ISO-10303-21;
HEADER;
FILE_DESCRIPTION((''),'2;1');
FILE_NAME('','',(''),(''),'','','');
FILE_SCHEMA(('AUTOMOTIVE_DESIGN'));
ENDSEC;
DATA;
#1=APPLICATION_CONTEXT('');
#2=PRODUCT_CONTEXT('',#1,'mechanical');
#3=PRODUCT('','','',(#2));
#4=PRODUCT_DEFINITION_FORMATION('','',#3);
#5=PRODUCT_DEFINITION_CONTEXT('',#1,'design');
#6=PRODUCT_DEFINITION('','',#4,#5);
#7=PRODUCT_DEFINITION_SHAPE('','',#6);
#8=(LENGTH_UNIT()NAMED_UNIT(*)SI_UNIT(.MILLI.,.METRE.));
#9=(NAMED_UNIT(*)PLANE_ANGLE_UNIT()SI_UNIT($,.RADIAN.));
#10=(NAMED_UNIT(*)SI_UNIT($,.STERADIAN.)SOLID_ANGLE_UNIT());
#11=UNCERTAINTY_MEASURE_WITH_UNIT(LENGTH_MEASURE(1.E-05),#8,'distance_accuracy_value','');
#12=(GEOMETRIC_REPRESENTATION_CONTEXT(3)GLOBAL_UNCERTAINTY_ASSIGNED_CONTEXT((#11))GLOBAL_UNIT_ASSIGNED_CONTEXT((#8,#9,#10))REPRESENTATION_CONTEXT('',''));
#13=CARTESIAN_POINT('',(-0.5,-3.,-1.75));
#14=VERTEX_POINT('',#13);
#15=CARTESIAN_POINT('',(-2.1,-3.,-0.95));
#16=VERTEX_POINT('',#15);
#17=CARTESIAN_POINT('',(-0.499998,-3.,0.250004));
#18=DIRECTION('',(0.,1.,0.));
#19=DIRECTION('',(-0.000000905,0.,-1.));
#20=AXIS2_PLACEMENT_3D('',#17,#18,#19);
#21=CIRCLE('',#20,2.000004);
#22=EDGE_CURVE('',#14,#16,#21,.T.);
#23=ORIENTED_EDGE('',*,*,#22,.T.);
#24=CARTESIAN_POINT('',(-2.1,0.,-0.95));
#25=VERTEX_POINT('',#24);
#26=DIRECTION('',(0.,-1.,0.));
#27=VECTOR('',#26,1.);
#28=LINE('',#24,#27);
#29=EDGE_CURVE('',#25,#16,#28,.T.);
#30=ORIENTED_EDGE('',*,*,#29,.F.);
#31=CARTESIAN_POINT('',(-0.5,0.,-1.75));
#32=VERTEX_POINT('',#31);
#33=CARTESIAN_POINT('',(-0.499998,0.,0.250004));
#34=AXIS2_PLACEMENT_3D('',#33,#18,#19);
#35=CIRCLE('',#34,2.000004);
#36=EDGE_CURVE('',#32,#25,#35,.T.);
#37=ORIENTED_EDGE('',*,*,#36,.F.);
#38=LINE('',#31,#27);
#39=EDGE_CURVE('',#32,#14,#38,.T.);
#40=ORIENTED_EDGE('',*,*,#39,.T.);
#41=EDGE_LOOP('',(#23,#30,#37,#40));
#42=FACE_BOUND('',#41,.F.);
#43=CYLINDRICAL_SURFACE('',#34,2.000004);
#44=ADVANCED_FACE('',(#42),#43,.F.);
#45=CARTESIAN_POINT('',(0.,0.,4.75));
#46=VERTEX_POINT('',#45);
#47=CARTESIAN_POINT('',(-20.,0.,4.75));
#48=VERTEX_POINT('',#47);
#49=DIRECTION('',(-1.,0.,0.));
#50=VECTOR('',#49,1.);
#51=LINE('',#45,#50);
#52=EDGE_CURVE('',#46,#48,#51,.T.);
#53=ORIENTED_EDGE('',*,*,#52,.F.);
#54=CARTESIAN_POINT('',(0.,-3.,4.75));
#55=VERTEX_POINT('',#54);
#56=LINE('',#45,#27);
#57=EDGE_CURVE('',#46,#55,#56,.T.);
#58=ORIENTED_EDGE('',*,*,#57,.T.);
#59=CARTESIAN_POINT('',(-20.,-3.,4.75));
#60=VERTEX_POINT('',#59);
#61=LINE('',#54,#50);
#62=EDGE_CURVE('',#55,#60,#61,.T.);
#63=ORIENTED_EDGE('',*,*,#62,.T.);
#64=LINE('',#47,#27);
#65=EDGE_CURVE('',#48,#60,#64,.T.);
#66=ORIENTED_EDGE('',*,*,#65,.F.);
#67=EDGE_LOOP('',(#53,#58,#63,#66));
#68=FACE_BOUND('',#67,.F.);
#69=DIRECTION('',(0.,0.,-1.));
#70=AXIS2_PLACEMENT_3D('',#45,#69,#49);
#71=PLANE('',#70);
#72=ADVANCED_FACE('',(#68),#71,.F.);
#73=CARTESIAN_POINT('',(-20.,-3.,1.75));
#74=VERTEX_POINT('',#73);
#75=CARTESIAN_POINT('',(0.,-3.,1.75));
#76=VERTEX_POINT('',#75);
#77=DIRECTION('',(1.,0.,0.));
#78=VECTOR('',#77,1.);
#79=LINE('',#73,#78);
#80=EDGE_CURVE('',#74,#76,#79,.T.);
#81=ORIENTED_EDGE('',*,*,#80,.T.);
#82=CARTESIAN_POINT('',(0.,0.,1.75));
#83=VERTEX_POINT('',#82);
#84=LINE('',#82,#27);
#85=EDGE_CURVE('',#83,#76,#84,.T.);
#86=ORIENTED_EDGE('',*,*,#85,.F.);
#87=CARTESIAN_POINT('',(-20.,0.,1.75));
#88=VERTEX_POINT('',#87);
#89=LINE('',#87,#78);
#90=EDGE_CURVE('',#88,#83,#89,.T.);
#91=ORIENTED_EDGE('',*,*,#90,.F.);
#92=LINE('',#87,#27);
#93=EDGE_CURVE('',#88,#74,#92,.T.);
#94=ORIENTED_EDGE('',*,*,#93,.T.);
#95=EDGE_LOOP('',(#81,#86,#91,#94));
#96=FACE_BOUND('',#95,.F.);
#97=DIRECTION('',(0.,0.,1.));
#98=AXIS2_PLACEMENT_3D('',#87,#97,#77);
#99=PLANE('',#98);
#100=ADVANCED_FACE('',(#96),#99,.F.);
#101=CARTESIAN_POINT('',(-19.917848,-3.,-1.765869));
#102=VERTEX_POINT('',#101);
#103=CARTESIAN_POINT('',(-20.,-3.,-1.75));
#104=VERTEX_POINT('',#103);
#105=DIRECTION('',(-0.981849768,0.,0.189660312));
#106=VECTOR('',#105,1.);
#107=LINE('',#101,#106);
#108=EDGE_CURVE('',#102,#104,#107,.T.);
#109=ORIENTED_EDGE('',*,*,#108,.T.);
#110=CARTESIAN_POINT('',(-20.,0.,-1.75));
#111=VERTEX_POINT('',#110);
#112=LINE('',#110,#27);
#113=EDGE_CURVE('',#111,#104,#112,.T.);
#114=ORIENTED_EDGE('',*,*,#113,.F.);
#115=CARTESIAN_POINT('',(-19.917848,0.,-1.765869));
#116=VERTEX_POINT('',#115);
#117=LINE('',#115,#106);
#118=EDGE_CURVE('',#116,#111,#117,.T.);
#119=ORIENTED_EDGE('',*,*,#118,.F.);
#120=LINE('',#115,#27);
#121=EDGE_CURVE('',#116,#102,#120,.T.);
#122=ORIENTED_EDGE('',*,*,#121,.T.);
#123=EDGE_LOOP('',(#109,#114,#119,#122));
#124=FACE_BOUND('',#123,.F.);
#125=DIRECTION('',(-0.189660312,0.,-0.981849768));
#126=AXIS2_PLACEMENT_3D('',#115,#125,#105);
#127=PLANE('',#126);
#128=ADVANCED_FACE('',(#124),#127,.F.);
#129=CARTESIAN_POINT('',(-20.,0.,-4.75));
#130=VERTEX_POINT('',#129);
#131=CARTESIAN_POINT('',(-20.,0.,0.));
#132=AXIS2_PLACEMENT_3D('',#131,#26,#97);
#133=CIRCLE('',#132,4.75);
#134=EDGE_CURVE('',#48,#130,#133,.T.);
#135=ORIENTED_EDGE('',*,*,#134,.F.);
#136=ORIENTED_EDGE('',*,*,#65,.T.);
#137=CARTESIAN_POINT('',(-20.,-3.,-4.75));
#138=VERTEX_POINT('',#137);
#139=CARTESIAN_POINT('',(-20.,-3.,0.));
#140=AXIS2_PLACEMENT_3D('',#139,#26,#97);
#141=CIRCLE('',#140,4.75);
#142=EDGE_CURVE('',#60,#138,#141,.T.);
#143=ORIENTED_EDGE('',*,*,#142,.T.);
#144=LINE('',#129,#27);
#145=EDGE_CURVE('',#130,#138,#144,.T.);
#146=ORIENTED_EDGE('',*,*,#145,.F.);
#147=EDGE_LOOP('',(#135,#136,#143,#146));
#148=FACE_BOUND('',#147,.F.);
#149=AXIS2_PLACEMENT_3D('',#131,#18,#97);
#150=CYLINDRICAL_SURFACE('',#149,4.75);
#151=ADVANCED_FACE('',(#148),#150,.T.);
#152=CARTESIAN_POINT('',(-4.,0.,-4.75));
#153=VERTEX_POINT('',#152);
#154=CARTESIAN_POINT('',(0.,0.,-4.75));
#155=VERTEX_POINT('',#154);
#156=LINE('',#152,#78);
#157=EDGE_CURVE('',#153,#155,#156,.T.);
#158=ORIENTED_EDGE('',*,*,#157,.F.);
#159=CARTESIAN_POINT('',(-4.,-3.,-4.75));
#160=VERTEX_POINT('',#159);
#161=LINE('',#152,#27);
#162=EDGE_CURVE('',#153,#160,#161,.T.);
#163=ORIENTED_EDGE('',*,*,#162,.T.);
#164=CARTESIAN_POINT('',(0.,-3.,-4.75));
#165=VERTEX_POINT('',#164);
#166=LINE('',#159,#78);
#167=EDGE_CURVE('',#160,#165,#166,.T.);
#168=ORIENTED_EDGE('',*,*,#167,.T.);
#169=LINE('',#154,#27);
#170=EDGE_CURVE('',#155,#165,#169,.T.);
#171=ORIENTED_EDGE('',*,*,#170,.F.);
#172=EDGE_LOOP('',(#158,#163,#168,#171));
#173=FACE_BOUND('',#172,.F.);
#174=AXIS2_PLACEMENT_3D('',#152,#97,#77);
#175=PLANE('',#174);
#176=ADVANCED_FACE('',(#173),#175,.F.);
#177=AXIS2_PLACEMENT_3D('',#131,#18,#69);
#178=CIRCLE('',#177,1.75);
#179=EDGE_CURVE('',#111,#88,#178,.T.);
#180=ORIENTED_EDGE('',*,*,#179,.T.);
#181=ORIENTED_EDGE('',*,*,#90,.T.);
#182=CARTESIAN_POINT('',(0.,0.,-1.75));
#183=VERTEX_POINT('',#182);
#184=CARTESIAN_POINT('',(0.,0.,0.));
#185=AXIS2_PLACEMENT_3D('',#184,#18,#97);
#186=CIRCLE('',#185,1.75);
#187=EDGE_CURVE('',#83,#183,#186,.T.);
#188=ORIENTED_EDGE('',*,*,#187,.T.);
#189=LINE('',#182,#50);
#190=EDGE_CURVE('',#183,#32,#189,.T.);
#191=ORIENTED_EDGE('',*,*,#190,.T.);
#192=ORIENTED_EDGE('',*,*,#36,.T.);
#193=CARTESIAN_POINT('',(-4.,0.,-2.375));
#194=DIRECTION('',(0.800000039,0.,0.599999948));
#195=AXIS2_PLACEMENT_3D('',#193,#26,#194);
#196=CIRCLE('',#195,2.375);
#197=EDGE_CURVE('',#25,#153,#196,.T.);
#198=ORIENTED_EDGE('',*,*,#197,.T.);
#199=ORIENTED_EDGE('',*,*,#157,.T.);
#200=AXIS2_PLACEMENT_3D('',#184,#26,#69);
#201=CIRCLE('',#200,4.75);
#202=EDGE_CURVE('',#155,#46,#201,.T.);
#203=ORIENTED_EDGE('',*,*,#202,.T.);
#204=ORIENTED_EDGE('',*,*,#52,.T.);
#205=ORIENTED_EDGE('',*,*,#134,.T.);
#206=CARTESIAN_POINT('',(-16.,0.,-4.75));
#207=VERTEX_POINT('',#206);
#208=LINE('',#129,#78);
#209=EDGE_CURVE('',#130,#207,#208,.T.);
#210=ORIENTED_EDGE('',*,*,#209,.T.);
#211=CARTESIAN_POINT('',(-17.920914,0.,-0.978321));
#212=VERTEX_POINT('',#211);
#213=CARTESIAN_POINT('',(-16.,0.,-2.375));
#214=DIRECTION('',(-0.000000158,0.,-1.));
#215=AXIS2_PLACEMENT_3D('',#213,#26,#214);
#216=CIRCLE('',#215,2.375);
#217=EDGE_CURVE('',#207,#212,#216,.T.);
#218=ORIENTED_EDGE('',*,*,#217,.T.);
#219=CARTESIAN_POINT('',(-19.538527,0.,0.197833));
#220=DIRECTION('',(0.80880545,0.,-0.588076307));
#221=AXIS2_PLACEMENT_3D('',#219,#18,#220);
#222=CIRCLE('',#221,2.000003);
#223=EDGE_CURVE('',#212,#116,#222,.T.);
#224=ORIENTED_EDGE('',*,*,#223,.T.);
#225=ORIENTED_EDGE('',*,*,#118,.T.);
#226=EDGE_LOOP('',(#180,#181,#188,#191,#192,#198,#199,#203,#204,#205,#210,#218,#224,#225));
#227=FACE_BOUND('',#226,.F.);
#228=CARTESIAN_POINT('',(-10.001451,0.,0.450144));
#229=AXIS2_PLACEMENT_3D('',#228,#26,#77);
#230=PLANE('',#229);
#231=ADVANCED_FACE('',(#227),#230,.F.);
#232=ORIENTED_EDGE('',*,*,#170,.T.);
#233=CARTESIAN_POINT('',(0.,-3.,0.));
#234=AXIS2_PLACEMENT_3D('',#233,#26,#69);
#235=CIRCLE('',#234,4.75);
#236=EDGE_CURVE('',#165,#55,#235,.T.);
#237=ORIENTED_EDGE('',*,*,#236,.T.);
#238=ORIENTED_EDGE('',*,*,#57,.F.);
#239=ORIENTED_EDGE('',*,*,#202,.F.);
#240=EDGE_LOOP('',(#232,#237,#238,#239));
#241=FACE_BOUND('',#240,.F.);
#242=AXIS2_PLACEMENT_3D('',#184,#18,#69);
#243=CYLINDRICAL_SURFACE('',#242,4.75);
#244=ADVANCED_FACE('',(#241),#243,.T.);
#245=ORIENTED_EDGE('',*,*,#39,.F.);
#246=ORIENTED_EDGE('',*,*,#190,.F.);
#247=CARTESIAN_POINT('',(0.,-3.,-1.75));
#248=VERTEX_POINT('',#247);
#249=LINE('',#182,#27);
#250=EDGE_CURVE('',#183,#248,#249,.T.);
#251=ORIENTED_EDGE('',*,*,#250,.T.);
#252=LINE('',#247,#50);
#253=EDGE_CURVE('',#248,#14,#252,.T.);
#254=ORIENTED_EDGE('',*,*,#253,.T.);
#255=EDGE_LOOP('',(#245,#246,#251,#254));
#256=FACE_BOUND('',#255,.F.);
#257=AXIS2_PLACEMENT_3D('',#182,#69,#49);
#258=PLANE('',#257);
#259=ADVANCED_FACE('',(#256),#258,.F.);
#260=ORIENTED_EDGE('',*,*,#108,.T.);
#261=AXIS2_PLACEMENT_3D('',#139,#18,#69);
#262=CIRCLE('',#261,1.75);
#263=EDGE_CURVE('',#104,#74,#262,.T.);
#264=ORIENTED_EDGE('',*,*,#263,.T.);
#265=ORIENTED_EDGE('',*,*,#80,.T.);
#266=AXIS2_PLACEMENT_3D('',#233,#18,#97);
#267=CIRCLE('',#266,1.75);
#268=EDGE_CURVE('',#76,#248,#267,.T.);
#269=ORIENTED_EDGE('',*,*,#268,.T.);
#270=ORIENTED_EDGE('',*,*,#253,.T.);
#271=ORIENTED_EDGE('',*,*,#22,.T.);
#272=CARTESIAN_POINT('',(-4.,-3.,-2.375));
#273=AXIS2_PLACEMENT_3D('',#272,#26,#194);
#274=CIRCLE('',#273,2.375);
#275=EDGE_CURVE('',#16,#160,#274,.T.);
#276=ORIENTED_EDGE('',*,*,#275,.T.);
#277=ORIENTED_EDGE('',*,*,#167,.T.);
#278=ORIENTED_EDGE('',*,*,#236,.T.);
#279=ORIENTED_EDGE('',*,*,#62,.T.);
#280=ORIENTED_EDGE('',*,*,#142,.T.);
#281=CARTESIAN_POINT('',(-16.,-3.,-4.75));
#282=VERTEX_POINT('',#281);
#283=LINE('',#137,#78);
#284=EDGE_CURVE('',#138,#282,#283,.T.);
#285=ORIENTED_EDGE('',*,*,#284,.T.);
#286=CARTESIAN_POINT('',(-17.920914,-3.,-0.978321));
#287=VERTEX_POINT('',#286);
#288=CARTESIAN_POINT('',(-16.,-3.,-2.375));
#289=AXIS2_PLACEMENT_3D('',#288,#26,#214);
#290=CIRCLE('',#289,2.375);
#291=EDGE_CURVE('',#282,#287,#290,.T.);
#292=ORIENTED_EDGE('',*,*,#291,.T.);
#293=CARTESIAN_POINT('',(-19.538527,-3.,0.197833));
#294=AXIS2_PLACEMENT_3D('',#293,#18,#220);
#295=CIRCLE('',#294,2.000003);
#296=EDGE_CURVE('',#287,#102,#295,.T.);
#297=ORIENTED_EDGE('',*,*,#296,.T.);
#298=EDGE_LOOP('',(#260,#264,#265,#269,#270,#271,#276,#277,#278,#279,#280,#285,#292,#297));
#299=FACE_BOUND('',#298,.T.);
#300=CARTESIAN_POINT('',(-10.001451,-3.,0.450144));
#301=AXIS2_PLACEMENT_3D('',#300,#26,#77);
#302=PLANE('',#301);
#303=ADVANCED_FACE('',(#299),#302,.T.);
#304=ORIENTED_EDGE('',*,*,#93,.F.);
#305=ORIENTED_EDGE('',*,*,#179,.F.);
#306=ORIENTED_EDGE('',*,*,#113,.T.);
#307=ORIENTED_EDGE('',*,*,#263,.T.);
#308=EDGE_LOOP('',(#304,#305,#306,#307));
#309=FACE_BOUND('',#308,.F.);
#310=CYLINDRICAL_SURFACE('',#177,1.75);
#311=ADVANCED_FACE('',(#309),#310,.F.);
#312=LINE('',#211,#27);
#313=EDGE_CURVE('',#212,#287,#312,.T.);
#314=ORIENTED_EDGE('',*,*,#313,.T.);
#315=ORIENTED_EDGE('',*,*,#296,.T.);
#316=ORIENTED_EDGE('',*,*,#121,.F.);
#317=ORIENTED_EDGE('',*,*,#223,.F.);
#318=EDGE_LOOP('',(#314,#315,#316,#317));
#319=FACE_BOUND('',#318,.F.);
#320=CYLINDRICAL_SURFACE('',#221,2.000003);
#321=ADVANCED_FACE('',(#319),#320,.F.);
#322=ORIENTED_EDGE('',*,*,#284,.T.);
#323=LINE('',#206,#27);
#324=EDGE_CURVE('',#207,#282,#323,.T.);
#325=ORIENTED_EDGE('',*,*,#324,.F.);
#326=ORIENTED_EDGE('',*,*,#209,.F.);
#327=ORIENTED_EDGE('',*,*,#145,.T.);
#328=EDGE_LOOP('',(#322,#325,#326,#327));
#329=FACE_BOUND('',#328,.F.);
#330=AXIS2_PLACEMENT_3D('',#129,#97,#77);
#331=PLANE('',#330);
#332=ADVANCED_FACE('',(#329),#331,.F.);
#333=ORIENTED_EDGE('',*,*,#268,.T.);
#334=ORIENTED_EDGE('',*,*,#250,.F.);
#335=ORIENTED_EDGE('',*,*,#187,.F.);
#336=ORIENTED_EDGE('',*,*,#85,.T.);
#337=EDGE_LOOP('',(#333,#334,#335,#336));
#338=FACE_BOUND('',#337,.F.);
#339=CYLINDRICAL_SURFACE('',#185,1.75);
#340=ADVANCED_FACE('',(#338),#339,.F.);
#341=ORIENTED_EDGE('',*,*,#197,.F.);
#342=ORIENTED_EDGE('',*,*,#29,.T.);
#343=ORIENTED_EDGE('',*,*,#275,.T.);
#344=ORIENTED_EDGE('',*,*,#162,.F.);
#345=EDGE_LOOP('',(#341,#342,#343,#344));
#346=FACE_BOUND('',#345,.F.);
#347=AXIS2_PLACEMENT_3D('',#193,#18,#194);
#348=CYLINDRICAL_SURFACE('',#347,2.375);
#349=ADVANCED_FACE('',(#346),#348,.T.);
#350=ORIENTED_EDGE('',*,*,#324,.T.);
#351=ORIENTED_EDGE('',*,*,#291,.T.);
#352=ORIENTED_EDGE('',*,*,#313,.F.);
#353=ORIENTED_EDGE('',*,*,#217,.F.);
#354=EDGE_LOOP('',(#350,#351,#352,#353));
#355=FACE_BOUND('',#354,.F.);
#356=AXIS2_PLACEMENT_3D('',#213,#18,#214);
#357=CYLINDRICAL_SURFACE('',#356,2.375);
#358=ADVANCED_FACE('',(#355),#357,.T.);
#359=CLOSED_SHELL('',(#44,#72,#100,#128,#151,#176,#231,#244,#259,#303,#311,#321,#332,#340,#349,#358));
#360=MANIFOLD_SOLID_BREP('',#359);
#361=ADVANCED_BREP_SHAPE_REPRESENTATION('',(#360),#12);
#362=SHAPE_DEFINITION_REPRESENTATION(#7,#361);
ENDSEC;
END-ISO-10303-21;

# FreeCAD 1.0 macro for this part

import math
import FreeCAD as App
import Part
import Sketcher

V = App.Vector

doc = App.newDocument("Part")
body = doc.addObject("PartDesign::Body", "Body")

# Sketch on XZ plane
sketch1 = body.newObject("Sketcher::SketchObject", "Sketch")
sketch1.AttachmentSupport = (doc.getObject("XZ_Plane"), [""])
sketch1.MapMode = "FlatFace"
sketch1.addGeometry([
    Part.ArcOfCircle(Part.Circle(V(0, 0, 0), V(0, 0, 1), 1.75), math.radians(-90), math.radians(90)),  # 0
    Part.LineSegment(V(0, -1.75, 0), V(-0.5, -1.75, 0)),  # 1
    Part.ArcOfCircle(Part.Circle(V(-0.5, 0.25, 0), V(0, 0, 1), 2), math.radians(-143), math.radians(-90)),  # 2
    Part.ArcOfCircle(Part.Circle(V(-4, -2.37, 0), V(0, 0, 1), 2.38), math.radians(37), math.radians(270)),  # 3
    Part.LineSegment(V(-4, -4.75, 0), V(0, -4.75, 0)),  # 4
    Part.ArcOfCircle(Part.Circle(V(0, 0, 0), V(0, 0, 1), 4.75), math.radians(-90), math.radians(90)),  # 5
    Part.LineSegment(V(0, 4.75, 0), V(-20, 4.75, 0)),  # 6
    Part.ArcOfCircle(Part.Circle(V(-20, 0, 0), V(0, 0, 1), 4.75), math.radians(90), math.radians(270)),  # 7
    Part.LineSegment(V(-20, -4.75, 0), V(-16, -4.75, 0)),  # 8
    Part.ArcOfCircle(Part.Circle(V(-16, -2.38, 0), V(0, 0, 1), 2.37), math.radians(-90), math.radians(144)),  # 9
    Part.ArcOfCircle(Part.Circle(V(-19.54, 0.2, 0), V(0, 0, 1), 2), math.radians(-101), math.radians(-36)),  # 10
    Part.LineSegment(V(-19.92, -1.77, 0), V(-20, -1.75, 0)),  # 11
    Part.ArcOfCircle(Part.Circle(V(-20, 0, 0), V(0, 0, 1), 1.75), math.radians(90), math.radians(270)),  # 12
    Part.LineSegment(V(-20, 1.75, 0), V(0, 1.75, 0)),  # 13
], False)
sketch1.addConstraint([
    Sketcher.Constraint("Tangent", 0, 1, 1, 1),
    Sketcher.Constraint("Tangent", 1, 2, 2, 2),
    Sketcher.Constraint("Tangent", 2, 1, 3, 1),
    Sketcher.Constraint("Tangent", 3, 2, 4, 1),
    Sketcher.Constraint("Tangent", 4, 2, 5, 1),
    Sketcher.Constraint("Tangent", 5, 2, 6, 1),
    Sketcher.Constraint("Tangent", 6, 2, 7, 1),
    Sketcher.Constraint("Tangent", 7, 2, 8, 1),
    Sketcher.Constraint("Tangent", 8, 2, 9, 1),
    Sketcher.Constraint("Tangent", 9, 2, 10, 2),
    Sketcher.Constraint("Tangent", 10, 1, 11, 1),
    Sketcher.Constraint("Coincident", 11, 2, 12, 2),
    Sketcher.Constraint("Tangent", 12, 1, 13, 1),
    Sketcher.Constraint("Tangent", 13, 2, 0, 2),
    Sketcher.Constraint("Horizontal", 1),
    Sketcher.Constraint("Horizontal", 4),
    Sketcher.Constraint("Horizontal", 6),
    Sketcher.Constraint("Horizontal", 8),
    Sketcher.Constraint("Horizontal", 13),
    Sketcher.Constraint("Coincident", 0, 3, -1, 1),
    Sketcher.Constraint("Coincident", 5, 3, -1, 1),
    Sketcher.Constraint("Coincident", 12, 3, 7, 3),
    Sketcher.Constraint("Equal", 5, 7),
    Sketcher.Constraint("Equal", 3, 9),
    Sketcher.Constraint("Equal", 2, 10),
    Sketcher.Constraint("Vertical", 7, 2, 11, 2),
    Sketcher.Constraint("Equal", 4, 8),
    Sketcher.Constraint("DistanceX", 4, 1, 4, 2, 4.0),
    Sketcher.Constraint("DistanceX", 6, 2, 6, 1, 20.0),
    Sketcher.Constraint("Radius", 0, 1.75),
    Sketcher.Constraint("Radius", 5, 4.75),
    Sketcher.Constraint("DistanceX", 1, 2, 1, 1, 0.5),
    Sketcher.Constraint("Radius", 3, 2.375),
    Sketcher.Constraint("Distance", 11, 0.083671),
])
pad1 = body.newObject("PartDesign::Pad", "Pad")
pad1.Profile = sketch1
pad1.Length = 3

doc.recompute()
